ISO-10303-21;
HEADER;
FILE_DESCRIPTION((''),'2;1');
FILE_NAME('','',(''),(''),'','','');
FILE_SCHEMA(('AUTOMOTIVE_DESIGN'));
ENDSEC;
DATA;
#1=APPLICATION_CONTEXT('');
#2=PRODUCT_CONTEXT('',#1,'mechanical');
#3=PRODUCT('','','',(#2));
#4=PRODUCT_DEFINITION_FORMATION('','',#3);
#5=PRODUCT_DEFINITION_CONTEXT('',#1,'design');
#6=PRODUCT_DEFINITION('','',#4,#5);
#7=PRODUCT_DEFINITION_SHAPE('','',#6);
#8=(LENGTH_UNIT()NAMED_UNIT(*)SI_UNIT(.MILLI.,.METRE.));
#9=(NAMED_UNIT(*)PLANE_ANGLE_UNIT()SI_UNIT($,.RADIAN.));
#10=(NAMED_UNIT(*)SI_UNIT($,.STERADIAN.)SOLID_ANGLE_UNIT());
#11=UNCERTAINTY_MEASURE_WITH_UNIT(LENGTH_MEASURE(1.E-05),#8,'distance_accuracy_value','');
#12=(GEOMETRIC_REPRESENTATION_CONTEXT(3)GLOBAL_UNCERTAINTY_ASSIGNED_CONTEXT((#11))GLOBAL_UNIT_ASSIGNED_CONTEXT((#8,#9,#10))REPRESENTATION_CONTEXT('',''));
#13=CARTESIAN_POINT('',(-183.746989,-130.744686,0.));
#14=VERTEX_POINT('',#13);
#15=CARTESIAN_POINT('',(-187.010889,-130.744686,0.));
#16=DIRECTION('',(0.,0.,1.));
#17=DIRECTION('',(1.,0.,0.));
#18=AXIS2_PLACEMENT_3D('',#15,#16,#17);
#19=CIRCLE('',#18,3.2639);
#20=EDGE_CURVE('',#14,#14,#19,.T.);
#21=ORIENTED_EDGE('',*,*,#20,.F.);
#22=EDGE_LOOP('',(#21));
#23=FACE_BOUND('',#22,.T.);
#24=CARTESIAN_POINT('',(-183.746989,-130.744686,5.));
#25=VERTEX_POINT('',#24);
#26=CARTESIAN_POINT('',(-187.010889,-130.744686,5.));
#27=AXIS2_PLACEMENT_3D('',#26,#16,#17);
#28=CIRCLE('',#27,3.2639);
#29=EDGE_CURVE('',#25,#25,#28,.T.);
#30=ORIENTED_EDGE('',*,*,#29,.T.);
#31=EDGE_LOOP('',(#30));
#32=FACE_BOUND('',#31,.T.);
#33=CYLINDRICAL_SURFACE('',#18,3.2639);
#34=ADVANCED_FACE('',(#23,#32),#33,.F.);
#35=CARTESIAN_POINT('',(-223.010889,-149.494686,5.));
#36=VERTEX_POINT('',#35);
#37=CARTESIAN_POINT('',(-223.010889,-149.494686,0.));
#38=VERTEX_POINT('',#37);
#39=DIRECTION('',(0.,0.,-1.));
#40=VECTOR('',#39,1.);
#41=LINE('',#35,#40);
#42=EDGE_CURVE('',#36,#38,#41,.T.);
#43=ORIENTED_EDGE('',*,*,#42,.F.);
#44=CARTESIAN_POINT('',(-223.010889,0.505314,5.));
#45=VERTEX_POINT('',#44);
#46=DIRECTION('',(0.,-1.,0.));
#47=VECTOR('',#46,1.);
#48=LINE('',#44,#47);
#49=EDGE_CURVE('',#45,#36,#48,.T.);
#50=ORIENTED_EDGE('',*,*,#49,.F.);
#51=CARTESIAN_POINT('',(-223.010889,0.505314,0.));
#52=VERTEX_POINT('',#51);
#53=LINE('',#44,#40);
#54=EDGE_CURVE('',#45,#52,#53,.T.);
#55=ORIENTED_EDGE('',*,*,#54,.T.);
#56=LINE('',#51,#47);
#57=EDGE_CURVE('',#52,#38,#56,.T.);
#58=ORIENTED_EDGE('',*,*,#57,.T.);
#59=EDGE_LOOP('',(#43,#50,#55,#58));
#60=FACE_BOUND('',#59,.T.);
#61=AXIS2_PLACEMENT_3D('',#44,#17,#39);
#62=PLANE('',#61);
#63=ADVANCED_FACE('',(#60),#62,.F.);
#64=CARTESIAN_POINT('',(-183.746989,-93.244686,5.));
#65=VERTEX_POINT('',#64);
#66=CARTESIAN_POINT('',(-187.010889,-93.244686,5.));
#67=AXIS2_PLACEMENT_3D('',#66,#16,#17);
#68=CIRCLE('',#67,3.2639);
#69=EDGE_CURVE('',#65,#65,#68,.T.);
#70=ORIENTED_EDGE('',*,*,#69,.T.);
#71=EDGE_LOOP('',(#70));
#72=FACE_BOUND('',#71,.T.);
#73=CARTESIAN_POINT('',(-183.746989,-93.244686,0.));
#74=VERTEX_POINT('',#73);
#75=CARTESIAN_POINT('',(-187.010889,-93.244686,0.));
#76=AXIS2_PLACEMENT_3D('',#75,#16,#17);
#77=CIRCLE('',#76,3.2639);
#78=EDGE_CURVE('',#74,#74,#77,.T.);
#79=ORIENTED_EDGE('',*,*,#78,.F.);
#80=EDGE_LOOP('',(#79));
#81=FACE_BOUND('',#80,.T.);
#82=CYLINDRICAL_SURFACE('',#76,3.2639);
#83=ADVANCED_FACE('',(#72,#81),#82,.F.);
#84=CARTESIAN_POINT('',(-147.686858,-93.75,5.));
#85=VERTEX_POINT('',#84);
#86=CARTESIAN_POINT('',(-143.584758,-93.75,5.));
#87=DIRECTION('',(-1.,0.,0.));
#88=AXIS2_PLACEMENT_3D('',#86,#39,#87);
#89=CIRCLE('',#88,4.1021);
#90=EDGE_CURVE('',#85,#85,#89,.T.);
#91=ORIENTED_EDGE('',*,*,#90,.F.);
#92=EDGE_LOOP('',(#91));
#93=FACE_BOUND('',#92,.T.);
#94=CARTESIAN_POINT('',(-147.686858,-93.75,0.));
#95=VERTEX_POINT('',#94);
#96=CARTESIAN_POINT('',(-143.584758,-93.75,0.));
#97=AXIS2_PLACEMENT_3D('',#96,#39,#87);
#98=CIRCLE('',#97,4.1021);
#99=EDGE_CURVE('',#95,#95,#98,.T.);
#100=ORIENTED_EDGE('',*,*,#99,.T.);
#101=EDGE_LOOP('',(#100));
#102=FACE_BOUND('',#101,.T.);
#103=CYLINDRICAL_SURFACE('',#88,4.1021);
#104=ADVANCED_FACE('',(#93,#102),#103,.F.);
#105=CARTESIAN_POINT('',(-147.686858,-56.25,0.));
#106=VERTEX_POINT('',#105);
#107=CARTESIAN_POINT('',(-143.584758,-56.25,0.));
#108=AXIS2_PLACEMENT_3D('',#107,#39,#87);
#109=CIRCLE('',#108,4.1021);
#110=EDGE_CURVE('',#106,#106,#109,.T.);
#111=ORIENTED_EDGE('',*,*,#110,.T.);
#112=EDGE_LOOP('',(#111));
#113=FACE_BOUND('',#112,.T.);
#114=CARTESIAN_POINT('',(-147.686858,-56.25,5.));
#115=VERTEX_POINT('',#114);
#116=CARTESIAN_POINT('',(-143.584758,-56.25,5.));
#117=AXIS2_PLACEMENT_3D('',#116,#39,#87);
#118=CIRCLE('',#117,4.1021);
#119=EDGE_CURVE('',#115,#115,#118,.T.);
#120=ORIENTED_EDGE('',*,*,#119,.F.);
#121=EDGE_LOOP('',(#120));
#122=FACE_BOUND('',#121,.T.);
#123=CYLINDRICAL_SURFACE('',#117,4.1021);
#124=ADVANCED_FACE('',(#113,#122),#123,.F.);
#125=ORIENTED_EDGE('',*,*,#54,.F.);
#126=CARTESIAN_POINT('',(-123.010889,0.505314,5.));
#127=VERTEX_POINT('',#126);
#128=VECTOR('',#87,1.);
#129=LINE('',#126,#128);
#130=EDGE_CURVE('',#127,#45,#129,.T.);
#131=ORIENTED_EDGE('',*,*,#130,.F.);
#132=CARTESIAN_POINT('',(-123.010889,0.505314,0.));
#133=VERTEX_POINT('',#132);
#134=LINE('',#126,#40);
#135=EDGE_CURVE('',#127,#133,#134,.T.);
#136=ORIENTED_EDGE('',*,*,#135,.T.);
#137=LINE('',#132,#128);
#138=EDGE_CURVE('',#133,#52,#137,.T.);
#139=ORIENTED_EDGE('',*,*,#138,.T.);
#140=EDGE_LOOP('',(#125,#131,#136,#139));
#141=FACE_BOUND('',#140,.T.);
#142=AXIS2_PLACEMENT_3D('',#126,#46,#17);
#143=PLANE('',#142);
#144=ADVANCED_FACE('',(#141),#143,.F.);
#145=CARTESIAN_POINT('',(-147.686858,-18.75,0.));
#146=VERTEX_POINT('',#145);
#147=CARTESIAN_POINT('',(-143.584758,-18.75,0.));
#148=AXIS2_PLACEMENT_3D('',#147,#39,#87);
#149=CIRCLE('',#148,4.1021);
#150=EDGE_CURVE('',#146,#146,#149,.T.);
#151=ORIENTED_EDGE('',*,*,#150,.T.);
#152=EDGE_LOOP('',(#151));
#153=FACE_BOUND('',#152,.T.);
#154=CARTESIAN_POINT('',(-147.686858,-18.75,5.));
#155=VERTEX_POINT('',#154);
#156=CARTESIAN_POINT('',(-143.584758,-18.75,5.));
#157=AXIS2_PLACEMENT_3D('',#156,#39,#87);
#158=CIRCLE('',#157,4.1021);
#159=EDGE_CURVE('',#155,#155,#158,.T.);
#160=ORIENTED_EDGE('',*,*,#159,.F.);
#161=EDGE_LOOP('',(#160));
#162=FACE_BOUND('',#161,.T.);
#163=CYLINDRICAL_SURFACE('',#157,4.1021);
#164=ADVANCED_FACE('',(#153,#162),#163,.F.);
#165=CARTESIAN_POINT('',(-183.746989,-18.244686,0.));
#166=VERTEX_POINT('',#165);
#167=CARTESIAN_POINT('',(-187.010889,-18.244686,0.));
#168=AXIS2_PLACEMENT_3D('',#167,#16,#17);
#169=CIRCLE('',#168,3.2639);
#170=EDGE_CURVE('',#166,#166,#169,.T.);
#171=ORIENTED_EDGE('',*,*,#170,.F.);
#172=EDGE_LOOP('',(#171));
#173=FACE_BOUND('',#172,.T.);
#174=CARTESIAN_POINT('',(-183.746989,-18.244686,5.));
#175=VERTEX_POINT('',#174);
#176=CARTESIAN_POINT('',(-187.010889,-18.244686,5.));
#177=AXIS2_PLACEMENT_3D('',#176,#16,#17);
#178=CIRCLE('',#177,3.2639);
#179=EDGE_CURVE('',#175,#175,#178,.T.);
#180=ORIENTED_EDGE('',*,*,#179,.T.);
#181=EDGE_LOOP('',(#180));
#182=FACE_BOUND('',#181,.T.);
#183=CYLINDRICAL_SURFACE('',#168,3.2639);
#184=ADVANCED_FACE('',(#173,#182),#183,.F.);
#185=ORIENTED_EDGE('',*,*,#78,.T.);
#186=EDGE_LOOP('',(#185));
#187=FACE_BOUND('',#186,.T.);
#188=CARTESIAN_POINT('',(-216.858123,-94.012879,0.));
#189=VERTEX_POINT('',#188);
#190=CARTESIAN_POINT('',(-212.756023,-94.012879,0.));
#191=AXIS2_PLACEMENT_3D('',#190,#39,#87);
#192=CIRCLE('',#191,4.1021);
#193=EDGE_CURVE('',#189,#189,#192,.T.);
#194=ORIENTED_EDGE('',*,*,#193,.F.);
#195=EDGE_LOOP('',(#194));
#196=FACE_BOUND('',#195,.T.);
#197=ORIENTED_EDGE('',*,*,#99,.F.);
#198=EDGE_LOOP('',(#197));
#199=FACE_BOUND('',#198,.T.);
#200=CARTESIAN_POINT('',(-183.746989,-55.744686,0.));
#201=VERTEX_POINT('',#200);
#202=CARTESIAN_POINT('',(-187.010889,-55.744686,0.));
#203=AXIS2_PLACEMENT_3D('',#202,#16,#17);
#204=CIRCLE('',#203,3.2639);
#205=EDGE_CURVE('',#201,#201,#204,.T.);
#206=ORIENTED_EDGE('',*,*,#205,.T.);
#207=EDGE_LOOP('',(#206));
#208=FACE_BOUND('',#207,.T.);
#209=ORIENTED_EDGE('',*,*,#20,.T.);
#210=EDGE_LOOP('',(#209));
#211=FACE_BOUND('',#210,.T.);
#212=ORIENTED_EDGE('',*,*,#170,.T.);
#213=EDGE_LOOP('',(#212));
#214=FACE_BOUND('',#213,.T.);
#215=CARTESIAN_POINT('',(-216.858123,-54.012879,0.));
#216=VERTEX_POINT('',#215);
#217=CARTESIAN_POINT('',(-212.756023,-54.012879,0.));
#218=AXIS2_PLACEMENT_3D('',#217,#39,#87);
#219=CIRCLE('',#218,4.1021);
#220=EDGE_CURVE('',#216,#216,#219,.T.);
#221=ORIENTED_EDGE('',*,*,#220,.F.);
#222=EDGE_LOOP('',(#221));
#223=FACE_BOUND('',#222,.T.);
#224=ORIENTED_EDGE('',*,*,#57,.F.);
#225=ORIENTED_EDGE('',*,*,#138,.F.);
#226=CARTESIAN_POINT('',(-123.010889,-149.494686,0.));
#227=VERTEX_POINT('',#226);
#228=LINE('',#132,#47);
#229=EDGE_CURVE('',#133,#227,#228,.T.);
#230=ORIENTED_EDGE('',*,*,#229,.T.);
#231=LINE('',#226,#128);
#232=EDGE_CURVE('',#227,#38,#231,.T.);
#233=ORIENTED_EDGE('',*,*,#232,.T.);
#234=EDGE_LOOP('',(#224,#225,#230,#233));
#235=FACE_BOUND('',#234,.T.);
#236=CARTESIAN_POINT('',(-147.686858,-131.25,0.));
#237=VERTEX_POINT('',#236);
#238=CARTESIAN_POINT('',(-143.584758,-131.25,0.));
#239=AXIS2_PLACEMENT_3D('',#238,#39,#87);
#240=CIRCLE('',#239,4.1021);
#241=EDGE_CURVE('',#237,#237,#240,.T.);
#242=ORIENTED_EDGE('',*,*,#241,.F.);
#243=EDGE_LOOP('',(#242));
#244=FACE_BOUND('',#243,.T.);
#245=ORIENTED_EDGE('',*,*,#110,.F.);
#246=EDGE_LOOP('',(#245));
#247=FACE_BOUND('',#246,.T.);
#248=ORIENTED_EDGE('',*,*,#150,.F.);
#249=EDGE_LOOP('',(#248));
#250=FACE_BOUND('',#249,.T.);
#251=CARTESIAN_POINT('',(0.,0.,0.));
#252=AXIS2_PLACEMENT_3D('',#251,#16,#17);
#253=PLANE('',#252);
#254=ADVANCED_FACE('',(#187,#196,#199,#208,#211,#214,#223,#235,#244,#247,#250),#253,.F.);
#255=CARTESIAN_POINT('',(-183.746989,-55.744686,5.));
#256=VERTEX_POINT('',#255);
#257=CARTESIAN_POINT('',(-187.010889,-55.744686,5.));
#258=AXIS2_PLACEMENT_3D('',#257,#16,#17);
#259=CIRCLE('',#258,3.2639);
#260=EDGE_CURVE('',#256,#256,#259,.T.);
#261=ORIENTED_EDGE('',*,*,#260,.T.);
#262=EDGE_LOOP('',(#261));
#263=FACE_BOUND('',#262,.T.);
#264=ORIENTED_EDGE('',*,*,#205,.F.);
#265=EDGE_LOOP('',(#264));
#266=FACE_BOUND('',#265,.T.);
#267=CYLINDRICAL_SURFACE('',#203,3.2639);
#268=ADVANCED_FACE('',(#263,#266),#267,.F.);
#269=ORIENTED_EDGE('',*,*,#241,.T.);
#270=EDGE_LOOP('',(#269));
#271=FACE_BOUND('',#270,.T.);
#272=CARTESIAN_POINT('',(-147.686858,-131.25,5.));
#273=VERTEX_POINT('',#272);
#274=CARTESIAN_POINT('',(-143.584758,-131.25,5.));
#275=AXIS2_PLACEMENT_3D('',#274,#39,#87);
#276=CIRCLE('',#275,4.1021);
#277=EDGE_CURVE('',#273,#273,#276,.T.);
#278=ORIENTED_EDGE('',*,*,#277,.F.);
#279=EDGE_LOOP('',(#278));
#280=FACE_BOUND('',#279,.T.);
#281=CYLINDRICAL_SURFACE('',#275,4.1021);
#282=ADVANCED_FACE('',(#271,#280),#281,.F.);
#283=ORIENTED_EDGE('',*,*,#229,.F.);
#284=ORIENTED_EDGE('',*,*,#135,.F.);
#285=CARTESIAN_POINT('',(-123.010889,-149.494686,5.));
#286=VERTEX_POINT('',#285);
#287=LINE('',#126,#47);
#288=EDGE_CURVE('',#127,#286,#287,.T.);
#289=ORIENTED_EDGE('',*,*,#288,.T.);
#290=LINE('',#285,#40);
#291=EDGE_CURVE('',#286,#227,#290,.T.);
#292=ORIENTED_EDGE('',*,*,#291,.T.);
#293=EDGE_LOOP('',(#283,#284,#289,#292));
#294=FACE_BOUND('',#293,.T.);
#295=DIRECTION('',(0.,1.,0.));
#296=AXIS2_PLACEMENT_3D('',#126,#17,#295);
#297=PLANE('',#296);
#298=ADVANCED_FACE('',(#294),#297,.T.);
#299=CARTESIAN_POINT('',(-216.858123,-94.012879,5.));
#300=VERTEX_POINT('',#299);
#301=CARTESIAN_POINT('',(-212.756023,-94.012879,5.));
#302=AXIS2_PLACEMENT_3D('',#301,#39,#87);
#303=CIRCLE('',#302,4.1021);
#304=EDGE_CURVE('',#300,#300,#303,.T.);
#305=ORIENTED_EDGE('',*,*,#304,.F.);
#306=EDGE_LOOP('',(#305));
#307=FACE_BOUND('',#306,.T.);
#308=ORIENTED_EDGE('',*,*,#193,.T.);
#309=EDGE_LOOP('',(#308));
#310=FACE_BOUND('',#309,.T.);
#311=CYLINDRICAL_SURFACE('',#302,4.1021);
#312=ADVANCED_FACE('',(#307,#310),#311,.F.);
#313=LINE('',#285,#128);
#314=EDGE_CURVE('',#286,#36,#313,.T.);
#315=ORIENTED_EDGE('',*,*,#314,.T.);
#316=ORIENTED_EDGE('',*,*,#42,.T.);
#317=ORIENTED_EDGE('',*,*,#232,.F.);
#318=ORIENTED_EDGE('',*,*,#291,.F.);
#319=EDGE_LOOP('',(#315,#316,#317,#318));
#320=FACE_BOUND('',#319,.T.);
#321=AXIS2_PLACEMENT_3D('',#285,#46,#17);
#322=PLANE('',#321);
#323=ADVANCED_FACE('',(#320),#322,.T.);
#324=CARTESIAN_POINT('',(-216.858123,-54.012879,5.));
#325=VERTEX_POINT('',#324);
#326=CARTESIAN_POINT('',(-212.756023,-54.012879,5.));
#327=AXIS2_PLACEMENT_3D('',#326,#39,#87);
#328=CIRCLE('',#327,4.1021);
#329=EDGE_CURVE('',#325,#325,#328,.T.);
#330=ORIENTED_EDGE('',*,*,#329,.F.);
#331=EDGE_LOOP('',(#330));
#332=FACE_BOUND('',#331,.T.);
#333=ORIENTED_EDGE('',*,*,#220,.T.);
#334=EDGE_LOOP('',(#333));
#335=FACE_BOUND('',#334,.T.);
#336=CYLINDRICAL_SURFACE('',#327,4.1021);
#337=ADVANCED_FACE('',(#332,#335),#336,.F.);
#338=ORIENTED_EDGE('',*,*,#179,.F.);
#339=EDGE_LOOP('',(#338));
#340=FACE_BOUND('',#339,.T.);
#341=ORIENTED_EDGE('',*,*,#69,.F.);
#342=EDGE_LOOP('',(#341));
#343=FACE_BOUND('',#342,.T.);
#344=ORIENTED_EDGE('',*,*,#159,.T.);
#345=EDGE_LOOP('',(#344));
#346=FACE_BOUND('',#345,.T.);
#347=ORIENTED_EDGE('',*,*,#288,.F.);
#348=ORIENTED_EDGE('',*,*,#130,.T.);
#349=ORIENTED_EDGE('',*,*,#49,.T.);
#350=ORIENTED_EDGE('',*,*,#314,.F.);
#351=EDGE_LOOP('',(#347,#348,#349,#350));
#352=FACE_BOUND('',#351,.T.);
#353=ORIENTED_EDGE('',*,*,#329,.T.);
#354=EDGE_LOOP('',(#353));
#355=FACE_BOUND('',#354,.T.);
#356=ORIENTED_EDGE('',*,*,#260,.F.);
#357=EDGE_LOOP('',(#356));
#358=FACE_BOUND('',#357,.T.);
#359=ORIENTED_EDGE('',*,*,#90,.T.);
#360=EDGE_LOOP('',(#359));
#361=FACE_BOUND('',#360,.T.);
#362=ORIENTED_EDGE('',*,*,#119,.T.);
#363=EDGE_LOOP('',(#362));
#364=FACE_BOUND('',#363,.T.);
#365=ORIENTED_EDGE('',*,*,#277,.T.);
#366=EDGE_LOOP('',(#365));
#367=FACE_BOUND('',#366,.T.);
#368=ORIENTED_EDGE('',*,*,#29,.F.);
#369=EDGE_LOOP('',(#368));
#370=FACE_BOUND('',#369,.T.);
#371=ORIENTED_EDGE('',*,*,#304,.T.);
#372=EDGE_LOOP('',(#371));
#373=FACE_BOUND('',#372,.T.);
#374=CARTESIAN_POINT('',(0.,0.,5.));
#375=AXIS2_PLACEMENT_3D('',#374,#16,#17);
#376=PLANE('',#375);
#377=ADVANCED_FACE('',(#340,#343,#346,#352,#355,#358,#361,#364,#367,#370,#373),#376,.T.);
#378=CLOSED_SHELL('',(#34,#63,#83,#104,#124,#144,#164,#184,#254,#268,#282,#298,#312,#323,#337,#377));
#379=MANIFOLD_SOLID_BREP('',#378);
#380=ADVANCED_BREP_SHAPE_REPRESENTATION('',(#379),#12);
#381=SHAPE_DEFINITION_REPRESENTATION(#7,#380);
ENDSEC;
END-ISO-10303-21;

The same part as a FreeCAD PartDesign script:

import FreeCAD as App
import Part
import Sketcher

doc = App.newDocument("Part")
body = doc.addObject("PartDesign::Body", "Body")

# Sketch on XY plane
sketch1 = body.newObject("Sketcher::SketchObject", "Sketch")
sketch1.AttachmentSupport = (doc.getObject("XY_Plane"), [""])
sketch1.MapMode = "FlatFace"
sketch1.addGeometry([
    Part.LineSegment(App.Vector(-223, 1, 0), App.Vector(-223, -149, 0)),
    Part.LineSegment(App.Vector(-223, -149, 0), App.Vector(-123, -149, 0)),
    Part.LineSegment(App.Vector(-123, -149, 0), App.Vector(-123, 1, 0)),
    Part.LineSegment(App.Vector(-123, 1, 0), App.Vector(-223, 1, 0)),
], False)
sketch1.addConstraint([
    Sketcher.Constraint("Coincident", 0, 2, 1, 1),
    Sketcher.Constraint("Coincident", 1, 2, 2, 1),
    Sketcher.Constraint("Coincident", 2, 2, 3, 1),
    Sketcher.Constraint("Coincident", 3, 2, 0, 1),
    Sketcher.Constraint("Vertical", 0),
    Sketcher.Constraint("Horizontal", 1),
    Sketcher.Constraint("Vertical", 2),
    Sketcher.Constraint("Horizontal", 3),
    Sketcher.Constraint("DistanceX", 1, 1, 1, 2, 100.0),
    Sketcher.Constraint("DistanceY", 0, 2, 0, 1, 150.0),
    Sketcher.Constraint("DistanceX", 0, 2, -1, 1, 223.010889),
    Sketcher.Constraint("DistanceY", 0, 2, -1, 1, 149.494686),
])
pad1 = body.newObject("PartDesign::Pad", "Pad")
pad1.Profile = sketch1
pad1.Length = 5

# Sketch on XY plane
sketch2 = body.newObject("Sketcher::SketchObject", "Sketch001")
sketch2.AttachmentSupport = (doc.getObject("XY_Plane"), [""])
sketch2.MapMode = "FlatFace"
sketch2.addGeometry([
    Part.Circle(App.Vector(-212.8, -54, 0), App.Vector(0, 0, 1), 4.1),  # 0
    Part.Circle(App.Vector(-212.8, -94, 0), App.Vector(0, 0, 1), 4.1),  # 1
    Part.Circle(App.Vector(-143.6, -18.8, 0), App.Vector(0, 0, 1), 4.1),  # 2
    Part.Circle(App.Vector(-143.6, -56.2, 0), App.Vector(0, 0, 1), 4.1),  # 3
    Part.Circle(App.Vector(-143.6, -93.8, 0), App.Vector(0, 0, 1), 4.1),  # 4
    Part.Circle(App.Vector(-143.6, -131.2, 0), App.Vector(0, 0, 1), 4.1),  # 5
], False)
sketch2.addConstraint([
    Sketcher.Constraint("Equal", 0, 1),
    Sketcher.Constraint("Equal", 1, 2),
    Sketcher.Constraint("Equal", 2, 3),
    Sketcher.Constraint("Equal", 3, 4),
    Sketcher.Constraint("Equal", 4, 5),
    Sketcher.Constraint("Vertical", 0, 3, 1, 3),
    Sketcher.Constraint("Vertical", 2, 3, 3, 3),
    Sketcher.Constraint("Vertical", 3, 3, 4, 3),
    Sketcher.Constraint("Vertical", 4, 3, 5, 3),
    Sketcher.Constraint("DistanceY", 1, 3, 0, 3, 40.0),
    Sketcher.Constraint("DistanceY", 4, 3, 2, 3, 75.0),
    Sketcher.Constraint("DistanceY", 5, 3, 3, 3, 75.0),
    Sketcher.Constraint("Diameter", 0, 8.2042),
    Sketcher.Constraint("DistanceY", 3, 3, 2, 3, 37.5),
    Sketcher.Constraint("DistanceY", 2, 3, -1, 1, 18.75),
    Sketcher.Constraint("DistanceY", 0, 3, -1, 1, 54.012879),
    Sketcher.Constraint("DistanceX", 2, 3, -1, 1, 143.584758),
    Sketcher.Constraint("DistanceX", 0, 3, -1, 1, 212.756023),
])
pocket1 = body.newObject("PartDesign::Pocket", "Pocket")
pocket1.Profile = sketch2
pocket1.Length = 5
pocket1.Reversed = True

# Sketch on XY plane
sketch3 = body.newObject("Sketcher::SketchObject", "Sketch002")
sketch3.AttachmentSupport = (doc.getObject("XY_Plane"), [""])
sketch3.MapMode = "FlatFace"
sketch3.AttachmentOffset = App.Placement(App.Vector(0, 0, 5), App.Rotation())
sketch3.addGeometry([
    Part.Circle(App.Vector(-187, -18.2, 0), App.Vector(0, 0, 1), 3.3),
    Part.Circle(App.Vector(-187, -55.7, 0), App.Vector(0, 0, 1), 3.3),
    Part.Circle(App.Vector(-187, -93.2, 0), App.Vector(0, 0, 1), 3.3),
    Part.Circle(App.Vector(-187, -130.7, 0), App.Vector(0, 0, 1), 3.3),
], False)
sketch3.addConstraint([
    Sketcher.Constraint("Equal", 0, 1),
    Sketcher.Constraint("Equal", 1, 2),
    Sketcher.Constraint("Equal", 2, 3),
    Sketcher.Constraint("Vertical", 0, 3, 1, 3),
    Sketcher.Constraint("Vertical", 1, 3, 2, 3),
    Sketcher.Constraint("Vertical", 2, 3, 3, 3),
    Sketcher.Constraint("DistanceY", 2, 3, 0, 3, 75.0),
    Sketcher.Constraint("DistanceY", 3, 3, 1, 3, 75.0),
    Sketcher.Constraint("Diameter", 0, 6.5278),
    Sketcher.Constraint("DistanceY", 1, 3, 0, 3, 37.5),
    Sketcher.Constraint("DistanceX", 0, 3, -1, 1, 187.010889),
    Sketcher.Constraint("DistanceY", 0, 3, -1, 1, 18.244686),
])
pocket2 = body.newObject("PartDesign::Pocket", "Pocket001")
pocket2.Profile = sketch3
pocket2.Type = "ThroughAll"

doc.recompute()
